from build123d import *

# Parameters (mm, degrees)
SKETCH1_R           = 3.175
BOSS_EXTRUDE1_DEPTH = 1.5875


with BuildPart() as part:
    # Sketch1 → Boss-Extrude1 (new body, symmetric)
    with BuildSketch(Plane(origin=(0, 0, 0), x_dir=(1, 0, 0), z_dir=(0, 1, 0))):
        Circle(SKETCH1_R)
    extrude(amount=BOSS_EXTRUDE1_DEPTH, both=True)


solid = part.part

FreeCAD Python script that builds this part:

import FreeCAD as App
import Part
import Sketcher
Q = App.Units.Quantity

doc = App.newDocument("Part")
params = doc.addObject("Spreadsheet::Sheet", "Params")
for row, (alias, value) in enumerate([
    ("sketch1_diameter", "0.25 in"),
    ("pad1_length", "0.125 in"),
], start=1):
    params.set(f"A{row}", alias)
    params.set(f"B{row}", "=" + value)
    params.setAlias(f"B{row}", alias)

body = doc.addObject("PartDesign::Body", "Body")

sketch1 = doc.addObject("Sketcher::SketchObject", "Sketch")
body.addObject(sketch1)
sketch1.AttachmentSupport = (doc.XZ_Plane, [""])
sketch1.MapMode = "FlatFace"
sketch1.addGeometry(Part.Circle(App.Vector(0, 0, 0), App.Vector(0, 0, 1), 3.2), False)
sketch1.addConstraint(Sketcher.Constraint("Coincident", 0, 3, -1, 1))
sketch1.addConstraint(Sketcher.Constraint("Diameter", 0, Q("0.25 in")))
sketch1.setExpression("Constraints[1]", "Params.sketch1_diameter")
pad1 = doc.addObject("PartDesign::Pad", "Pad")
body.addObject(pad1)
pad1.Profile = sketch1
pad1.setExpression("Length", "Params.pad1_length")
pad1.Midplane = True

doc.recompute()
